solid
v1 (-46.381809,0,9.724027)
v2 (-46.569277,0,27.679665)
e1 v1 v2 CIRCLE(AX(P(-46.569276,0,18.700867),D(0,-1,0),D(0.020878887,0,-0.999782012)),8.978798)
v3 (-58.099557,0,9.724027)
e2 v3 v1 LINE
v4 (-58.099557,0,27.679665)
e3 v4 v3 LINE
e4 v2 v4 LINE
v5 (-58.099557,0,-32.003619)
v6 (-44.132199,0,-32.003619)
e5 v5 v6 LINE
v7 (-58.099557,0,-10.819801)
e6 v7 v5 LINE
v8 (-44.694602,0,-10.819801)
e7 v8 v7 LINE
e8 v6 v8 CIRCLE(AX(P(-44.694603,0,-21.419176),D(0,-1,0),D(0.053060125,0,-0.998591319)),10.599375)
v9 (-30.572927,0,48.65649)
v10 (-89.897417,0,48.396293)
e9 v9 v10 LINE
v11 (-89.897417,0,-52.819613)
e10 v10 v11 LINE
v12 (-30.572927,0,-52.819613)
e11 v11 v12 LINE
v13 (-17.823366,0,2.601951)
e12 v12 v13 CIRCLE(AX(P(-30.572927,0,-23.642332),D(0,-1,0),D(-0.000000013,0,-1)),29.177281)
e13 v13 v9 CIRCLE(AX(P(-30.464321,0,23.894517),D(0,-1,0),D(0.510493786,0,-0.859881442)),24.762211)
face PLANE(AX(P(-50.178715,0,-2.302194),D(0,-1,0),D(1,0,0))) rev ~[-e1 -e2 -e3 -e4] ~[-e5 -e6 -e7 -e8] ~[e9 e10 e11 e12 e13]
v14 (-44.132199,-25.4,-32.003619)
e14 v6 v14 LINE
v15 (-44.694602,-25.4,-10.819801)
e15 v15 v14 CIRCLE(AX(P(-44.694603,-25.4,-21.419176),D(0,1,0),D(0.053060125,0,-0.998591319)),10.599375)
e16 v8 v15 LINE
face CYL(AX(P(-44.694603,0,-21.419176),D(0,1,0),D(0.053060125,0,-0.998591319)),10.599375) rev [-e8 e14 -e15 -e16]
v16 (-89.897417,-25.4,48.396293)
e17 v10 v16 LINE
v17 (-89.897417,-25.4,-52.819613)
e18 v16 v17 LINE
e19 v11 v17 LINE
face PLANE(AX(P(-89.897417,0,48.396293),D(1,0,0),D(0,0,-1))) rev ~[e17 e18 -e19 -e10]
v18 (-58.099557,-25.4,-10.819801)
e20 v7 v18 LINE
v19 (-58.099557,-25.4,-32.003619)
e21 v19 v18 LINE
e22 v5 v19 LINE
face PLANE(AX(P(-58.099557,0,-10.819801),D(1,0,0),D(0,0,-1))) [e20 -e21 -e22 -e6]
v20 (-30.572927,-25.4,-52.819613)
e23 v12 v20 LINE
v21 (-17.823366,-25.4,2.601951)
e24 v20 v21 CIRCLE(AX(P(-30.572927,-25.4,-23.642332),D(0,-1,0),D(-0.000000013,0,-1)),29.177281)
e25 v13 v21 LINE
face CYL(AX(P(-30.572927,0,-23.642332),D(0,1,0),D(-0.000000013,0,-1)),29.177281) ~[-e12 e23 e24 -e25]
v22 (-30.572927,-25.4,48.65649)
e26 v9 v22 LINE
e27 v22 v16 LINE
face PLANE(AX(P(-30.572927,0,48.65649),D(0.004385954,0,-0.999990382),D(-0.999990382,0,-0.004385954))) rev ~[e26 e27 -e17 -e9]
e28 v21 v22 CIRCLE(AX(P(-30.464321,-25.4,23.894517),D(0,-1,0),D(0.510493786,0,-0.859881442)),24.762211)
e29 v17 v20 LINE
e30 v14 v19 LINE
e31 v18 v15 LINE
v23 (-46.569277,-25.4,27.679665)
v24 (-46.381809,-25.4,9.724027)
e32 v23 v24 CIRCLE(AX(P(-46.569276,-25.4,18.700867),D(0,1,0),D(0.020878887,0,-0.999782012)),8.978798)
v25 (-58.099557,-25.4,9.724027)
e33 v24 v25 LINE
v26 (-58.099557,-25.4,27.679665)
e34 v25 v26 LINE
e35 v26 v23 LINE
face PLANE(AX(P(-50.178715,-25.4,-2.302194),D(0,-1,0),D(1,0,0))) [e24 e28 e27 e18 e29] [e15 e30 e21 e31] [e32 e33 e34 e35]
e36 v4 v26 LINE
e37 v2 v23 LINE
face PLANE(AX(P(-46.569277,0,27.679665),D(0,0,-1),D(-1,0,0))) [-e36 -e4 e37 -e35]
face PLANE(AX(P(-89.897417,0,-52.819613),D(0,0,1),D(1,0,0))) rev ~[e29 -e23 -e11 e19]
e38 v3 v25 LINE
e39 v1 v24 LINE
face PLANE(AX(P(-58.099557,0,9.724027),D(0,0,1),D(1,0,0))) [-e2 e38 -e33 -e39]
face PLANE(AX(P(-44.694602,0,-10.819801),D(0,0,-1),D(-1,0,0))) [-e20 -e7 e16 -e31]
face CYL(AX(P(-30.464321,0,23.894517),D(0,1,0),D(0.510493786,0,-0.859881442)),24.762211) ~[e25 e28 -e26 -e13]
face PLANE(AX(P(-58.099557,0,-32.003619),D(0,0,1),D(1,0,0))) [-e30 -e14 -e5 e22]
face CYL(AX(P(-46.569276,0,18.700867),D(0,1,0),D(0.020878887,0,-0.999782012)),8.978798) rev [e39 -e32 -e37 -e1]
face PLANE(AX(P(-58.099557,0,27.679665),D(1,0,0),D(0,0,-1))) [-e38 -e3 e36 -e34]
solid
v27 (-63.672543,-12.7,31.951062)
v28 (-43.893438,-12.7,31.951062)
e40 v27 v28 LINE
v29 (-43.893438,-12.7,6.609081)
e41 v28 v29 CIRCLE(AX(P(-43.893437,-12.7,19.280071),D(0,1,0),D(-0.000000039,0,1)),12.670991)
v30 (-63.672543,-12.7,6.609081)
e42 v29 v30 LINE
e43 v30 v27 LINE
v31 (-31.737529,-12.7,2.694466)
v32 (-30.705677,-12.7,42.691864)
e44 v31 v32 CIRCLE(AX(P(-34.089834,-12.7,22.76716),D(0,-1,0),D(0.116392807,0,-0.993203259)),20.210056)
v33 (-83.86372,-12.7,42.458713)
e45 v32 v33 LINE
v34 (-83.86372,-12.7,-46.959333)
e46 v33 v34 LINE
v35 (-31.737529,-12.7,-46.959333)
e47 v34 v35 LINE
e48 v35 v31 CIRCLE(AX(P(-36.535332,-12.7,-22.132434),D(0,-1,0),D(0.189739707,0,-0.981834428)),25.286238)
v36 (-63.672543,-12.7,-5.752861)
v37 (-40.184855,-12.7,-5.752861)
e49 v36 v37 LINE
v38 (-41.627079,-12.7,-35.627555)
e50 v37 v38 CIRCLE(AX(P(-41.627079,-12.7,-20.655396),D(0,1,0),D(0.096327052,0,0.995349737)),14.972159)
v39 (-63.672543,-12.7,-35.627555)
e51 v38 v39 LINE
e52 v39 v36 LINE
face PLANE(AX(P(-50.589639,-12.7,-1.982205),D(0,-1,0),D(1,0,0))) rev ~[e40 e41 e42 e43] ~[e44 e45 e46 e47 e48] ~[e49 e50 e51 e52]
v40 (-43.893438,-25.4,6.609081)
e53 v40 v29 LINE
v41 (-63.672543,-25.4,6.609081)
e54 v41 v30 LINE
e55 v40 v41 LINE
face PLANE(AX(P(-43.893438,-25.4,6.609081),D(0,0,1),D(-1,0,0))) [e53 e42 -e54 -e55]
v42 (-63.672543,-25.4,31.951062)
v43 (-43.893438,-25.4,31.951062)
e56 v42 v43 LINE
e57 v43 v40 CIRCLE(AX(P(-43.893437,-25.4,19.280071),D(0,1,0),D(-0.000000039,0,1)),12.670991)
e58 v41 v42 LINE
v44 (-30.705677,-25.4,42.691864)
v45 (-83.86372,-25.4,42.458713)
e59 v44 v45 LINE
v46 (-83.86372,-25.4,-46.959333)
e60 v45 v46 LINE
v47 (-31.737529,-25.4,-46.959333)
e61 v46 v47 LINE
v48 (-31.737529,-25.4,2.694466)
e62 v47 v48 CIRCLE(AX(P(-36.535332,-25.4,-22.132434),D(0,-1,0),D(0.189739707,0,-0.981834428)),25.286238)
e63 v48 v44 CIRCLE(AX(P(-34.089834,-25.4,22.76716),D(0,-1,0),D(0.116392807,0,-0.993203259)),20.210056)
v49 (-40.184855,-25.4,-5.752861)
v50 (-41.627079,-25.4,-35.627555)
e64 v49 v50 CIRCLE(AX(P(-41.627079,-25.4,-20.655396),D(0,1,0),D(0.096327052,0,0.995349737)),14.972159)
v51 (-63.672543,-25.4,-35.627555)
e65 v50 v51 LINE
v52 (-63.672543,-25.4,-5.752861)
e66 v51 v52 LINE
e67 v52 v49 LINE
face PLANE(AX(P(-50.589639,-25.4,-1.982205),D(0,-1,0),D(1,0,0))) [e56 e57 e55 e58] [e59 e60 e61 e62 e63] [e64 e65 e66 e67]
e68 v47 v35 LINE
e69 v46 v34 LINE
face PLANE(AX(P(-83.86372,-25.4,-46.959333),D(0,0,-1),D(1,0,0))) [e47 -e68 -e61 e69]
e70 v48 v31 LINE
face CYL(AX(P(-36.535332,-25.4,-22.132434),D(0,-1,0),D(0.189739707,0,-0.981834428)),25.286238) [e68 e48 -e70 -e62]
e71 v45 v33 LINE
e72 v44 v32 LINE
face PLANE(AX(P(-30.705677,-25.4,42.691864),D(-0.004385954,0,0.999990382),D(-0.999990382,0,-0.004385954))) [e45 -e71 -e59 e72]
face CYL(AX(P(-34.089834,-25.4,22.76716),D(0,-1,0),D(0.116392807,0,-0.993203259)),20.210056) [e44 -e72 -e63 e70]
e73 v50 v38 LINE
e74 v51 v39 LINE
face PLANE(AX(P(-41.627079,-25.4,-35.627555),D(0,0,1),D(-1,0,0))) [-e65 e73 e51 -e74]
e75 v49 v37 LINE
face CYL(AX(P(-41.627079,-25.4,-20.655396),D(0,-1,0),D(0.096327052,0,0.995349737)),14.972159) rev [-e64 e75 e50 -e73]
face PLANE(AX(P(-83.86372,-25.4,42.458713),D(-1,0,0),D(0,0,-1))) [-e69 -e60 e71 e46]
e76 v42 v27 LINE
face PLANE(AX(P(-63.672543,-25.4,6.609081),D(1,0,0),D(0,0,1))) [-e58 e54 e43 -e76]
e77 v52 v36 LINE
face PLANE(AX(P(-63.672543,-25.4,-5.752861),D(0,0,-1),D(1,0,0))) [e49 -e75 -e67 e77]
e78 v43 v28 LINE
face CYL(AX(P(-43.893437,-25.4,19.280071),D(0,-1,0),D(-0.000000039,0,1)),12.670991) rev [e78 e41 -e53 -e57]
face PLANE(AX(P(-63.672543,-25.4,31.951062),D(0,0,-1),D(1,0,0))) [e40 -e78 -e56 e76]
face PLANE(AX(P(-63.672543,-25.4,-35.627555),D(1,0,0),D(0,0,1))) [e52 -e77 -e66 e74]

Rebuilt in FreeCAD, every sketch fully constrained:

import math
import FreeCAD as App
import Part
import Sketcher
Q = App.Units.Quantity

doc = App.newDocument("Part")
body = doc.addObject("PartDesign::Body", "Body")

sketch1 = doc.addObject("Sketcher::SketchObject", "Sketch")
body.addObject(sketch1)
sketch1.AttachmentSupport = (doc.XZ_Plane, [""])
sketch1.MapMode = "FlatFace"
sketch1.addGeometry([
    Part.LineSegment(App.Vector(-30.572927, 48.65649, 0), App.Vector(-89.897417, 48.396293, 0)),
    Part.LineSegment(App.Vector(-89.897417, 48.396293, 0), App.Vector(-89.897417, -52.819613, 0)),
    Part.LineSegment(App.Vector(-89.897417, -52.819613, 0), App.Vector(-30.572927, -52.819613, 0)),
    Part.ArcOfCircle(Part.Circle(App.Vector(-30.572927, -23.642332, 0), App.Vector(0, 0, 1), 29.177281), math.radians(-90.000001), math.radians(64.089363)),
    Part.ArcOfCircle(Part.Circle(App.Vector(-30.464321, 23.894517, 0), App.Vector(0, 0, 1), 24.762211), math.radians(-59.303274), math.radians(90.251298)),
], False)
sketch1.addConstraint([
    Sketcher.Constraint("Coincident", 0, 2, 1, 1),
    Sketcher.Constraint("Coincident", 1, 2, 2, 1),
    Sketcher.Constraint("Coincident", 2, 2, 3, 1),
    Sketcher.Constraint("Coincident", 3, 2, 4, 1),
    Sketcher.Constraint("Coincident", 4, 2, 0, 1),
    Sketcher.Constraint("Vertical", 1),
    Sketcher.Constraint("Horizontal", 2),
    Sketcher.Constraint("Radius", 3, 29.177281),
    Sketcher.Constraint("Radius", 4, 24.762211),
    Sketcher.Constraint("DistanceX", 2, 1, 2, 2, 59.32449),
    Sketcher.Constraint("Distance", 0, 59.325061),
    Sketcher.Constraint("DistanceY", 1, 2, 1, 1, 101.215906),
    Sketcher.Constraint("DistanceX", 4, 3, -1, 1, 30.464321),
    Sketcher.Constraint("DistanceY", -1, 1, 3, 2, 2.601951),
    Sketcher.Constraint("DistanceY", -1, 1, 4, 2, 48.65649),
    Sketcher.Constraint("DistanceY", 3, 3, 4, 3, 47.536849),
    Sketcher.Constraint("DistanceX", 0, 2, 3, 3, 59.32449),
])
pad1 = doc.addObject("PartDesign::Pad", "Pad")
body.addObject(pad1)
pad1.Profile = sketch1
pad1.Length = Q("1 in")

sketch2 = doc.addObject("Sketcher::SketchObject", "Sketch001")
body.addObject(sketch2)
sketch2.AttachmentSupport = (doc.XZ_Plane, [""])
sketch2.MapMode = "FlatFace"
sketch2.addGeometry([
    Part.LineSegment(App.Vector(-46.569277, 27.679665, 0), App.Vector(-58.099557, 27.679665, 0)),
    Part.LineSegment(App.Vector(-58.099557, 27.679665, 0), App.Vector(-58.099557, 9.724027, 0)),
    Part.LineSegment(App.Vector(-58.099557, 9.724027, 0), App.Vector(-46.381809, 9.724027, 0)),
    Part.ArcOfCircle(Part.Circle(App.Vector(-46.569276, 18.700867, 0), App.Vector(0, 0, 1), 8.978798), math.radians(-88.803641), math.radians(90.000004)),
    Part.LineSegment(App.Vector(-44.694602, -10.819801, 0), App.Vector(-58.099557, -10.819801, 0)),
    Part.LineSegment(App.Vector(-58.099557, -10.819801, 0), App.Vector(-58.099557, -32.003619, 0)),
    Part.LineSegment(App.Vector(-58.099557, -32.003619, 0), App.Vector(-44.132199, -32.003619, 0)),
    Part.ArcOfCircle(Part.Circle(App.Vector(-44.694603, -21.419176, 0), App.Vector(0, 0, 1), 10.599375), math.radians(-86.95845), math.radians(89.999994)),
], False)
sketch2.addConstraint([
    Sketcher.Constraint("Coincident", 0, 2, 1, 1),
    Sketcher.Constraint("Coincident", 1, 2, 2, 1),
    Sketcher.Constraint("Coincident", 2, 2, 3, 1),
    Sketcher.Constraint("Tangent", 3, 2, 0, 1),
    Sketcher.Constraint("Coincident", 4, 2, 5, 1),
    Sketcher.Constraint("Coincident", 5, 2, 6, 1),
    Sketcher.Constraint("Coincident", 6, 2, 7, 1),
    Sketcher.Constraint("Tangent", 7, 2, 4, 1),
    Sketcher.Constraint("Horizontal", 0),
    Sketcher.Constraint("Vertical", 1),
    Sketcher.Constraint("Horizontal", 2),
    Sketcher.Constraint("Horizontal", 4),
    Sketcher.Constraint("Vertical", 5),
    Sketcher.Constraint("Horizontal", 6),
    Sketcher.Constraint("Vertical", 1, 2, 4, 2),
    Sketcher.Constraint("Radius", 3, 8.978798),
    Sketcher.Constraint("Radius", 7, 10.599375),
    Sketcher.Constraint("DistanceX", 0, 2, 0, 1, 11.53028),
    Sketcher.Constraint("DistanceY", 1, 2, 1, 1, 17.955638),
    Sketcher.Constraint("DistanceY", 5, 2, 5, 1, 21.183818),
    Sketcher.Constraint("DistanceY", 4, 2, -1, 1, 10.819801),
    Sketcher.Constraint("DistanceX", 6, 2, -1, 1, 44.132199),
    Sketcher.Constraint("DistanceX", 4, 2, 4, 1, 13.404955),
    Sketcher.Constraint("DistanceY", 7, 3, 0, 2, 49.098841),
])
pocket1 = doc.addObject("PartDesign::Pocket", "Pocket")
body.addObject(pocket1)
pocket1.Profile = sketch2
pocket1.Length = Q("1 in")

sketch3 = doc.addObject("Sketcher::SketchObject", "Sketch002")
body.addObject(sketch3)
sketch3.AttachmentSupport = (doc.XZ_Plane, [""])
sketch3.MapMode = "FlatFace"
sketch3.addGeometry([
    Part.LineSegment(App.Vector(-46.569277, 27.679665, 0), App.Vector(-58.099557, 27.679665, 0)),
    Part.LineSegment(App.Vector(-58.099557, 27.679665, 0), App.Vector(-58.099557, 9.724027, 0)),
    Part.LineSegment(App.Vector(-58.099557, 9.724027, 0), App.Vector(-46.381809, 9.724027, 0)),
    Part.ArcOfCircle(Part.Circle(App.Vector(-46.569276, 18.700867, 0), App.Vector(0, 0, 1), 8.978798), math.radians(-88.803641), math.radians(90.000004)),
    Part.LineSegment(App.Vector(-44.694602, -10.819801, 0), App.Vector(-58.099557, -10.819801, 0)),
    Part.LineSegment(App.Vector(-58.099557, -10.819801, 0), App.Vector(-58.099557, -32.003619, 0)),
    Part.LineSegment(App.Vector(-58.099557, -32.003619, 0), App.Vector(-44.132199, -32.003619, 0)),
    Part.ArcOfCircle(Part.Circle(App.Vector(-44.694603, -21.419176, 0), App.Vector(0, 0, 1), 10.599375), math.radians(-86.95845), math.radians(89.999994)),
], False)
sketch3.addConstraint([
    Sketcher.Constraint("Coincident", 0, 2, 1, 1),
    Sketcher.Constraint("Coincident", 1, 2, 2, 1),
    Sketcher.Constraint("Coincident", 2, 2, 3, 1),
    Sketcher.Constraint("Tangent", 3, 2, 0, 1),
    Sketcher.Constraint("Coincident", 4, 2, 5, 1),
    Sketcher.Constraint("Coincident", 5, 2, 6, 1),
    Sketcher.Constraint("Coincident", 6, 2, 7, 1),
    Sketcher.Constraint("Tangent", 7, 2, 4, 1),
    Sketcher.Constraint("Horizontal", 0),
    Sketcher.Constraint("Vertical", 1),
    Sketcher.Constraint("Horizontal", 2),
    Sketcher.Constraint("Horizontal", 4),
    Sketcher.Constraint("Vertical", 5),
    Sketcher.Constraint("Horizontal", 6),
    Sketcher.Constraint("Vertical", 1, 2, 4, 2),
    Sketcher.Constraint("Radius", 3, 8.978798),
    Sketcher.Constraint("Radius", 7, 10.599375),
    Sketcher.Constraint("DistanceX", 0, 2, 0, 1, 11.53028),
    Sketcher.Constraint("DistanceY", 1, 2, 1, 1, 17.955638),
    Sketcher.Constraint("DistanceY", 5, 2, 5, 1, 21.183818),
    Sketcher.Constraint("DistanceY", 4, 2, -1, 1, 10.819801),
    Sketcher.Constraint("DistanceX", 6, 2, -1, 1, 44.132199),
    Sketcher.Constraint("DistanceX", 4, 2, 4, 1, 13.404955),
    Sketcher.Constraint("DistanceY", 7, 3, 0, 2, 49.098841),
])
pocket2 = doc.addObject("PartDesign::Pocket", "Pocket001")
body.addObject(pocket2)
pocket2.Profile = sketch3
pocket2.Length = Q("2.12 in")
pocket2.Reversed = True
body2 = doc.addObject("PartDesign::Body", "Body001")

sketch4 = doc.addObject("Sketcher::SketchObject", "Sketch003")
body2.addObject(sketch4)
sketch4.AttachmentSupport = (doc.getObject("XZ_Plane001"), [""])
sketch4.MapMode = "FlatFace"
sketch4.AttachmentOffset = App.Placement(App.Vector(0, 0, 1 * 25.4), App.Rotation())
sketch4.addGeometry([
    Part.LineSegment(App.Vector(-30.705677, 42.691864, 0), App.Vector(-83.86372, 42.458713, 0)),
    Part.LineSegment(App.Vector(-83.86372, 42.458713, 0), App.Vector(-83.86372, -46.959333, 0)),
    Part.LineSegment(App.Vector(-83.86372, -46.959333, 0), App.Vector(-31.737529, -46.959333, 0)),
    Part.ArcOfCircle(Part.Circle(App.Vector(-36.535332, -22.132434, 0), App.Vector(0, 0, 1), 25.286238), math.radians(-79.062406), math.radians(79.062406)),
    Part.ArcOfCircle(Part.Circle(App.Vector(-34.089834, 22.76716, 0), App.Vector(0, 0, 1), 20.210056), math.radians(-83.316033), math.radians(80.360458)),
    Part.ArcOfCircle(Part.Circle(App.Vector(-41.627079, -20.655396, 0), App.Vector(0, 0, 1), 14.972159), math.radians(-90), math.radians(84.472295)),
    Part.LineSegment(App.Vector(-41.627079, -35.627555, 0), App.Vector(-63.672543, -35.627555, 0)),
    Part.LineSegment(App.Vector(-63.672543, -35.627555, 0), App.Vector(-63.672543, -5.752861, 0)),
    Part.LineSegment(App.Vector(-63.672543, -5.752861, 0), App.Vector(-40.184855, -5.752861, 0)),
    Part.LineSegment(App.Vector(-43.893438, 6.609081, 0), App.Vector(-63.672543, 6.609081, 0)),
    Part.LineSegment(App.Vector(-63.672543, 6.609081, 0), App.Vector(-63.672543, 31.951062, 0)),
    Part.LineSegment(App.Vector(-63.672543, 31.951062, 0), App.Vector(-43.893438, 31.951062, 0)),
    Part.ArcOfCircle(Part.Circle(App.Vector(-43.893437, 19.280071, 0), App.Vector(0, 0, 1), 12.670991), math.radians(-90.000002), math.radians(90.000002)),
], False)
sketch4.addConstraint([
    Sketcher.Constraint("Coincident", 0, 2, 1, 1),
    Sketcher.Constraint("Coincident", 1, 2, 2, 1),
    Sketcher.Constraint("Coincident", 2, 2, 3, 1),
    Sketcher.Constraint("Coincident", 3, 2, 4, 1),
    Sketcher.Constraint("Coincident", 4, 2, 0, 1),
    Sketcher.Constraint("Tangent", 5, 1, 6, 1),
    Sketcher.Constraint("Coincident", 6, 2, 7, 1),
    Sketcher.Constraint("Coincident", 7, 2, 8, 1),
    Sketcher.Constraint("Coincident", 8, 2, 5, 2),
    Sketcher.Constraint("Coincident", 9, 2, 10, 1),
    Sketcher.Constraint("Coincident", 10, 2, 11, 1),
    Sketcher.Constraint("Tangent", 11, 2, 12, 2),
    Sketcher.Constraint("Tangent", 12, 1, 9, 1),
    Sketcher.Constraint("Vertical", 1),
    Sketcher.Constraint("Horizontal", 2),
    Sketcher.Constraint("Horizontal", 6),
    Sketcher.Constraint("Vertical", 7),
    Sketcher.Constraint("Horizontal", 8),
    Sketcher.Constraint("Horizontal", 9),
    Sketcher.Constraint("Vertical", 10),
    Sketcher.Constraint("Horizontal", 11),
    Sketcher.Constraint("Vertical", 2, 2, 3, 2),
    Sketcher.Constraint("Vertical", 7, 2, 9, 2),
    Sketcher.Constraint("Radius", 3, 25.286238),
    Sketcher.Constraint("Radius", 5, 14.972159),
    Sketcher.Constraint("Radius", 12, 12.670991),
    Sketcher.Constraint("DistanceY", -1, 1, 9, 2, Q("0.2602 in")),
    Sketcher.Constraint("Radius", 4, 20.210056),
    Sketcher.Constraint("DistanceX", 2, 1, 2, 2, 52.126191),
    Sketcher.Constraint("DistanceX", 3, 3, 4, 3, 2.445498),
    Sketcher.Constraint("DistanceY", 1, 2, 3, 3, 24.826899),
    Sketcher.Constraint("DistanceY", 3, 2, 4, 2, 39.997398),
    Sketcher.Constraint("DistanceX", 5, 3, 4, 2, 10.921402),
    Sketcher.Constraint("DistanceY", 10, 2, 4, 2, 10.740802),
    Sketcher.Constraint("DistanceX", 6, 2, 6, 1, 22.045464),
    Sketcher.Constraint("DistanceX", 8, 1, 8, 2, 23.487688),
    Sketcher.Constraint("DistanceX", 9, 2, 9, 1, 19.779105),
    Sketcher.Constraint("DistanceY", 1, 2, 1, 1, 89.418046),
    Sketcher.Constraint("DistanceX", 5, 3, -1, 1, 41.627079),
    Sketcher.Constraint("DistanceY", 7, 2, -1, 1, 5.752861),
])
pad2 = doc.addObject("PartDesign::Pad", "Pad001")
body2.addObject(pad2)
pad2.Profile = sketch4
pad2.Length = Q("0.5 in")
pad2.Reversed = True

doc.recompute()
